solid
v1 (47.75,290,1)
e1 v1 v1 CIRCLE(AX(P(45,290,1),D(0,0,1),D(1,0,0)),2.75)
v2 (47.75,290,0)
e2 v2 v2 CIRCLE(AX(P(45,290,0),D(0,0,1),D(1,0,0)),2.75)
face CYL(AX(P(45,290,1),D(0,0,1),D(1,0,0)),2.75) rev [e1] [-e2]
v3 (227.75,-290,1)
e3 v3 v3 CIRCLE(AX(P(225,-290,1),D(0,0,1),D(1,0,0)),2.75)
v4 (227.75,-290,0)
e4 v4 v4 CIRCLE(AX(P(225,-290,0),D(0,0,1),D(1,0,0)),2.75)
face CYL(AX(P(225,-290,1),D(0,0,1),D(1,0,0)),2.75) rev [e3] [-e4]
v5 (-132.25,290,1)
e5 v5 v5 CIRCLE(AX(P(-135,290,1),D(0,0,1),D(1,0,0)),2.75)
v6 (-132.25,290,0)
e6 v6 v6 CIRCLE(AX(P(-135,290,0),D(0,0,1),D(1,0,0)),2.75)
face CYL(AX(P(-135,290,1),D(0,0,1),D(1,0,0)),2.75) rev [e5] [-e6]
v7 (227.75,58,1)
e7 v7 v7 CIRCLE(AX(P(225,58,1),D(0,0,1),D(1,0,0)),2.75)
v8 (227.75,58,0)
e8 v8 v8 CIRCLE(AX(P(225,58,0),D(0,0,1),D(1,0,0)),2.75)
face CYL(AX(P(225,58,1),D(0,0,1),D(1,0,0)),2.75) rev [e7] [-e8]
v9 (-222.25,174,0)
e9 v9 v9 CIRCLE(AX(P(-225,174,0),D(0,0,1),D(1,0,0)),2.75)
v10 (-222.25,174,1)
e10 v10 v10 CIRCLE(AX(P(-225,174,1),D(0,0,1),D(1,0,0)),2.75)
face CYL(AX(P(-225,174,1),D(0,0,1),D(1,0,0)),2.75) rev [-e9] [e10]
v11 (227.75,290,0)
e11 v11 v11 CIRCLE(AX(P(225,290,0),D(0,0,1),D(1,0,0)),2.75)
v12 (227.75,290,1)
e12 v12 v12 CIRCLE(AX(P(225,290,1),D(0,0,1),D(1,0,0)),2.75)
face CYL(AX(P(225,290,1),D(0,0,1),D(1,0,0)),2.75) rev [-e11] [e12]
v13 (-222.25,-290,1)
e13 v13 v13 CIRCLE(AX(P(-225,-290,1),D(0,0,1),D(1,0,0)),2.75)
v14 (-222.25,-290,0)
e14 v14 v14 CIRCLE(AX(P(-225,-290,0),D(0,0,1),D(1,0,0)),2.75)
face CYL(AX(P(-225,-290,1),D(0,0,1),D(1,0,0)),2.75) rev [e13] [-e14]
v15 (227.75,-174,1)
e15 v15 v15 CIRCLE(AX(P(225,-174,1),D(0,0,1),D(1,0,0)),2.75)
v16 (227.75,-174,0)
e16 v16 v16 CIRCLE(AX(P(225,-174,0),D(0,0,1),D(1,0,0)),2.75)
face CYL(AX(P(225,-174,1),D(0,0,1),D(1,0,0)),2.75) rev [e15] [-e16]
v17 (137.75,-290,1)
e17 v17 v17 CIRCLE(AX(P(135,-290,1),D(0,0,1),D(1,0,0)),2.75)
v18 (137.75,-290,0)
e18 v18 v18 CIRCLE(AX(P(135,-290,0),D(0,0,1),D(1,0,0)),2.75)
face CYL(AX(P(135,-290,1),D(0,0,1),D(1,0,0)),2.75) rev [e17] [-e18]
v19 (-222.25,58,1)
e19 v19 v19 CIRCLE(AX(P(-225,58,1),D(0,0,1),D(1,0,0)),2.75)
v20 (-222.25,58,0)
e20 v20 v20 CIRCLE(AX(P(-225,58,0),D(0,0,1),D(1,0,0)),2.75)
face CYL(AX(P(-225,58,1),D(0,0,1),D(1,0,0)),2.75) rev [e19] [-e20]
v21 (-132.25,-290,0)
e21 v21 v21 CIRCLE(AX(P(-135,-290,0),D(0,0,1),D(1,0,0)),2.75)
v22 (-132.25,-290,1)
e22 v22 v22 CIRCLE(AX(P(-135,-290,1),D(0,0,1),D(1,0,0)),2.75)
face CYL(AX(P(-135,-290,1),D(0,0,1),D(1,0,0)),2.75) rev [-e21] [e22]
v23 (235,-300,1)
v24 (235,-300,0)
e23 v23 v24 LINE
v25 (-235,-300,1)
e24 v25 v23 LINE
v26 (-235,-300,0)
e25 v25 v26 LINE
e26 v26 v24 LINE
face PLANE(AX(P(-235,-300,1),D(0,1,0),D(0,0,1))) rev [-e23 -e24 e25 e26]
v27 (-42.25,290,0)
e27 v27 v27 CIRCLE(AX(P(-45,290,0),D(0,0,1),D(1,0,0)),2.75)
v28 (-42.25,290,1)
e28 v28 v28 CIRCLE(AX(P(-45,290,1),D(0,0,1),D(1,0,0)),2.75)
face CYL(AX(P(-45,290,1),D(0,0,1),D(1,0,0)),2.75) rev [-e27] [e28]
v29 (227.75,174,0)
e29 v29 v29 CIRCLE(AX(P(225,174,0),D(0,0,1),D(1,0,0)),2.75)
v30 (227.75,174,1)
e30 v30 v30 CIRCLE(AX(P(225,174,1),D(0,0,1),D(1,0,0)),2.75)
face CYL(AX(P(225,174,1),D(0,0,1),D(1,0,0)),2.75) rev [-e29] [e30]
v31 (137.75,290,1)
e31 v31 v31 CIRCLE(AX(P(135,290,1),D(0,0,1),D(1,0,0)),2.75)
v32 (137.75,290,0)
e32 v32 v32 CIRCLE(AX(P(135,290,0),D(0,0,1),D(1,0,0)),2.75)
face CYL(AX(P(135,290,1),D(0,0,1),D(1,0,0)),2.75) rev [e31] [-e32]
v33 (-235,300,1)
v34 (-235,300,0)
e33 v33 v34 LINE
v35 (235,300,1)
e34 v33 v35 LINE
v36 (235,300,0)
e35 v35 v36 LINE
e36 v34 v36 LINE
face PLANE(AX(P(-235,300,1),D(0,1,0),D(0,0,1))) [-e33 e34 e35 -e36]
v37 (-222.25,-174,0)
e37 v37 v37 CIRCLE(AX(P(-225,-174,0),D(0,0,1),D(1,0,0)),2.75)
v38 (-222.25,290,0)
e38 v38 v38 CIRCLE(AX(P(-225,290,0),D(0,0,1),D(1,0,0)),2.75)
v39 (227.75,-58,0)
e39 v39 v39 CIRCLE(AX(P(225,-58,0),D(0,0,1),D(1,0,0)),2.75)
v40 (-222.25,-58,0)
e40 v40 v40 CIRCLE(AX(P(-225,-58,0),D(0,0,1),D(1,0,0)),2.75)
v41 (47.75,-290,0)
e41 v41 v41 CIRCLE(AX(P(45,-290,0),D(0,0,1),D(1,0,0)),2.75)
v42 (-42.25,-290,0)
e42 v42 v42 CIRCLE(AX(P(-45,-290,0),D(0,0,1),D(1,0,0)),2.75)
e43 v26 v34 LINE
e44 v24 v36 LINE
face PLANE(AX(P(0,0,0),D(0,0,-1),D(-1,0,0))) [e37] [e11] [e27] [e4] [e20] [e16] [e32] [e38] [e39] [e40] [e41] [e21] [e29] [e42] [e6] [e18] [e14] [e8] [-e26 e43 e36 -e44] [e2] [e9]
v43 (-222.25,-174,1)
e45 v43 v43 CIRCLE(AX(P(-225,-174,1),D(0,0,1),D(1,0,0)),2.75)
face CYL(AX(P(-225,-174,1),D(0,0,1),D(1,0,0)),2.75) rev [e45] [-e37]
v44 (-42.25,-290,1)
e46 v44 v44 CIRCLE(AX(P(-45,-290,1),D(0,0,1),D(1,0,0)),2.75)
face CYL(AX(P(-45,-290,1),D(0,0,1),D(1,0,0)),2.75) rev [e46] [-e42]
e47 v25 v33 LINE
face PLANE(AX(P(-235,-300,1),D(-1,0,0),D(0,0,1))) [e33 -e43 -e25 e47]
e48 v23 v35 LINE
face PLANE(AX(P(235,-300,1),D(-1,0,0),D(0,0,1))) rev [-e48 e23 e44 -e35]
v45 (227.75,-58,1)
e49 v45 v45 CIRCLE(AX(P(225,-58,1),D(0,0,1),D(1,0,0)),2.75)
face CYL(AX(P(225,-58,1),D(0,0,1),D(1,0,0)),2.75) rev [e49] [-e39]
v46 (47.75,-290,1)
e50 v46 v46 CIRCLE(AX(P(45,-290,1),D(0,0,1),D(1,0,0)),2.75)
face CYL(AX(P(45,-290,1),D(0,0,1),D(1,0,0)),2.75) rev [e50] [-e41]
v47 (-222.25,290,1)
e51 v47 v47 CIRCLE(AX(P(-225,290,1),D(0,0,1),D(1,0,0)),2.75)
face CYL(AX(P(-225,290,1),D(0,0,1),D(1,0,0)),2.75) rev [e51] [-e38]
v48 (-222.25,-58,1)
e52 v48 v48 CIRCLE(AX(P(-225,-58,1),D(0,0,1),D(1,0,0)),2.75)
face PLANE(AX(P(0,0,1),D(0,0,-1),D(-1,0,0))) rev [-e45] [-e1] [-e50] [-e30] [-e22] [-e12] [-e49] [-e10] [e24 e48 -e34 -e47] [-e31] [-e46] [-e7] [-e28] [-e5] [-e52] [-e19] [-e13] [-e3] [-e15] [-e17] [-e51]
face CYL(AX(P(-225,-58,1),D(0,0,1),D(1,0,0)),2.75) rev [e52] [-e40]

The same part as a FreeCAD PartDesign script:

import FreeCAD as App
import Part
import Sketcher

V = App.Vector
Q = App.Units.Quantity


def add_polygon(sketch, points):
    """Adds a closed chain of lines whose ends are joined by coincident constraints."""
    first, n = sketch.GeometryCount, len(points)
    for a, b in zip(points, points[1:] + points[:1]):
        sketch.addGeometry(Part.LineSegment(App.Vector(*a, 0), App.Vector(*b, 0)), False)
    for i in range(n):
        sketch.addConstraint(Sketcher.Constraint("Coincident", first + i, 2, first + (i + 1) % n, 1))

doc = App.newDocument("Part")
body = doc.addObject("PartDesign::Body", "Body")

sketch1 = body.newObject("Sketcher::SketchObject", "Sketch")
sketch1.AttachmentSupport = (doc.getObject("XY_Plane"), [""])
sketch1.MapMode = "FlatFace"
add_polygon(sketch1, [(-235, 300), (-235, -300), (235, -300), (235, 300)])
sketch1.addConstraint(Sketcher.Constraint("Vertical", 0))
sketch1.addConstraint(Sketcher.Constraint("Horizontal", 1))
sketch1.addConstraint(Sketcher.Constraint("Vertical", 2))
sketch1.addConstraint(Sketcher.Constraint("Horizontal", 3))
sketch1.addConstraint(Sketcher.Constraint("Symmetric", 0, 2, 2, 2, -1, 1))
sketch1.addConstraint(Sketcher.Constraint("DistanceX", 1, 1, 1, 2, Q("470 mm")))
sketch1.addConstraint(Sketcher.Constraint("DistanceY", 0, 2, 0, 1, Q("600 mm")))
pad1 = body.newObject("PartDesign::Pad", "Pad")
pad1.Profile = sketch1
pad1.Length = 1

sketch2 = body.newObject("Sketcher::SketchObject", "Sketch001")
sketch2.AttachmentSupport = (doc.getObject("XY_Plane"), [""])
sketch2.MapMode = "FlatFace"
sketch2.AttachmentOffset = App.Placement(V(0, 0, 1), App.Rotation())
sketch2.addGeometry(Part.Circle(V(-225, 290, 0), V(0, 0, 1), 2.8), False)
sketch2.addGeometry(Part.Circle(V(-135, 290, 0), V(0, 0, 1), 2.8), False)
sketch2.addGeometry(Part.Circle(V(-45, 290, 0), V(0, 0, 1), 2.8), False)
sketch2.addGeometry(Part.Circle(V(45, 290, 0), V(0, 0, 1), 2.8), False)
sketch2.addGeometry(Part.Circle(V(135, 290, 0), V(0, 0, 1), 2.8), False)
sketch2.addGeometry(Part.Circle(V(225, 290, 0), V(0, 0, 1), 2.8), False)
sketch2.addGeometry(Part.Circle(V(225, 174, 0), V(0, 0, 1), 2.8), False)
sketch2.addGeometry(Part.Circle(V(225, 58, 0), V(0, 0, 1), 2.8), False)
sketch2.addGeometry(Part.Circle(V(225, -58, 0), V(0, 0, 1), 2.8), False)
sketch2.addGeometry(Part.Circle(V(225, -174, 0), V(0, 0, 1), 2.8), False)
sketch2.addGeometry(Part.Circle(V(225, -290, 0), V(0, 0, 1), 2.8), False)
sketch2.addGeometry(Part.Circle(V(135, -290, 0), V(0, 0, 1), 2.8), False)
sketch2.addGeometry(Part.Circle(V(45, -290, 0), V(0, 0, 1), 2.8), False)
sketch2.addGeometry(Part.Circle(V(-45, -290, 0), V(0, 0, 1), 2.8), False)
sketch2.addGeometry(Part.Circle(V(-135, -290, 0), V(0, 0, 1), 2.8), False)
sketch2.addGeometry(Part.Circle(V(-225, -290, 0), V(0, 0, 1), 2.8), False)
sketch2.addGeometry(Part.Circle(V(-225, -174, 0), V(0, 0, 1), 2.8), False)
sketch2.addGeometry(Part.Circle(V(-225, -58, 0), V(0, 0, 1), 2.8), False)
sketch2.addGeometry(Part.Circle(V(-225, 174, 0), V(0, 0, 1), 2.8), False)
sketch2.addGeometry(Part.Circle(V(-225, 58, 0), V(0, 0, 1), 2.8), False)
sketch2.addConstraint(Sketcher.Constraint("Equal", 0, 1))
sketch2.addConstraint(Sketcher.Constraint("Equal", 1, 2))
sketch2.addConstraint(Sketcher.Constraint("Equal", 2, 3))
sketch2.addConstraint(Sketcher.Constraint("Equal", 3, 4))
sketch2.addConstraint(Sketcher.Constraint("Equal", 4, 5))
sketch2.addConstraint(Sketcher.Constraint("Equal", 5, 6))
sketch2.addConstraint(Sketcher.Constraint("Equal", 6, 7))
sketch2.addConstraint(Sketcher.Constraint("Equal", 7, 8))
sketch2.addConstraint(Sketcher.Constraint("Equal", 8, 9))
sketch2.addConstraint(Sketcher.Constraint("Equal", 9, 10))
sketch2.addConstraint(Sketcher.Constraint("Equal", 10, 11))
sketch2.addConstraint(Sketcher.Constraint("Equal", 11, 12))
sketch2.addConstraint(Sketcher.Constraint("Equal", 12, 13))
sketch2.addConstraint(Sketcher.Constraint("Equal", 13, 14))
sketch2.addConstraint(Sketcher.Constraint("Equal", 14, 15))
sketch2.addConstraint(Sketcher.Constraint("Equal", 15, 16))
sketch2.addConstraint(Sketcher.Constraint("Equal", 16, 17))
sketch2.addConstraint(Sketcher.Constraint("Equal", 17, 18))
sketch2.addConstraint(Sketcher.Constraint("Equal", 18, 19))
sketch2.addConstraint(Sketcher.Constraint("Symmetric", 0, 3, 10, 3, -1, 1))
sketch2.addConstraint(Sketcher.Constraint("Symmetric", 1, 3, 11, 3, -1, 1))
sketch2.addConstraint(Sketcher.Constraint("Symmetric", 2, 3, 12, 3, -1, 1))
sketch2.addConstraint(Sketcher.Constraint("Symmetric", 3, 3, 13, 3, -1, 1))
sketch2.addConstraint(Sketcher.Constraint("Symmetric", 4, 3, 14, 3, -1, 1))
sketch2.addConstraint(Sketcher.Constraint("Symmetric", 5, 3, 15, 3, -1, 1))
sketch2.addConstraint(Sketcher.Constraint("Symmetric", 6, 3, 16, 3, -1, 1))
sketch2.addConstraint(Sketcher.Constraint("Symmetric", 7, 3, 17, 3, -1, 1))
sketch2.addConstraint(Sketcher.Constraint("Symmetric", 9, 3, 18, 3, -1, 1))
sketch2.addConstraint(Sketcher.Constraint("Symmetric", 8, 3, 19, 3, -1, 1))
sketch2.addConstraint(Sketcher.Constraint("Symmetric", 2, 3, 3, 3, -2))
sketch2.addConstraint(Sketcher.Constraint("Symmetric", 1, 3, 4, 3, -2))
sketch2.addConstraint(Sketcher.Constraint("Symmetric", 0, 3, 5, 3, -2))
sketch2.addConstraint(Sketcher.Constraint("Symmetric", 9, 3, 16, 3, -2))
sketch2.addConstraint(Sketcher.Constraint("Symmetric", 8, 3, 17, 3, -2))
sketch2.addConstraint(Sketcher.Constraint("Horizontal", 0, 3, 1, 3))
sketch2.addConstraint(Sketcher.Constraint("Horizontal", 1, 3, 2, 3))
sketch2.addConstraint(Sketcher.Constraint("Vertical", 5, 3, 6, 3))
sketch2.addConstraint(Sketcher.Constraint("Vertical", 6, 3, 7, 3))
sketch2.addConstraint(Sketcher.Constraint("Diameter", 0, Q("5.5 mm")))
sketch2.addConstraint(Sketcher.Constraint("DistanceX", 0, 3, -1, 1, Q("225 mm")))
sketch2.addConstraint(Sketcher.Constraint("DistanceY", -1, 1, 0, 3, Q("290 mm")))
sketch2.addConstraint(Sketcher.Constraint("DistanceX", 1, 3, -1, 1, Q("135 mm")))
sketch2.addConstraint(Sketcher.Constraint("DistanceX", 2, 3, -1, 1, Q("45 mm")))
sketch2.addConstraint(Sketcher.Constraint("DistanceY", -1, 1, 6, 3, Q("174 mm")))
sketch2.addConstraint(Sketcher.Constraint("DistanceY", -1, 1, 7, 3, Q("58 mm")))
doc.recompute()
hole = body.newObject("PartDesign::Hole", "Hole")
hole.Profile = sketch2
hole.ThreadType = "None"
hole.Diameter = 5.5
hole.DepthType = "ThroughAll"

doc.recompute()
